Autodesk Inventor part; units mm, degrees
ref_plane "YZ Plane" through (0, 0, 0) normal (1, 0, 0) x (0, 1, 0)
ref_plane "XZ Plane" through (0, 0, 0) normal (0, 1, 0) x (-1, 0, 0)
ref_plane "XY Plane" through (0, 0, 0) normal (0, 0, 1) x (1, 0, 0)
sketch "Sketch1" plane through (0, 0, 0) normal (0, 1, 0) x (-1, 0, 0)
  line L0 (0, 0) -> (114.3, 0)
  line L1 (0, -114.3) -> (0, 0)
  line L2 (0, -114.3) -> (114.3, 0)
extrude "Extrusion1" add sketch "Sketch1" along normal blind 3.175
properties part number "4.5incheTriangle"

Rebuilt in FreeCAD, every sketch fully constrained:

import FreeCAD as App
import Part
import Sketcher
from FreeCAD import Vector
Q = App.Units.Quantity

doc = App.newDocument("Part")
body = doc.addObject("PartDesign::Body", "Body")

# Sketch on XZ plane
sketch1 = body.newObject("Sketcher::SketchObject", "Sketch")
sketch1.AttachmentSupport = (doc.getObject("XZ_Plane"), [""])
sketch1.MapMode = "FlatFace"
sketch1.addGeometry(Part.LineSegment(Vector(-114, 0, 0), Vector(0, 0, 0)), False)
sketch1.addGeometry(Part.LineSegment(Vector(0, 0, 0), Vector(0, -114, 0)), False)
sketch1.addGeometry(Part.LineSegment(Vector(0, -114, 0), Vector(-114, 0, 0)), False)
sketch1.addConstraint(Sketcher.Constraint("Coincident", 0, 2, 1, 1))
sketch1.addConstraint(Sketcher.Constraint("Coincident", 1, 2, 2, 1))
sketch1.addConstraint(Sketcher.Constraint("Coincident", 2, 2, 0, 1))
sketch1.addConstraint(Sketcher.Constraint("Horizontal", 0))
sketch1.addConstraint(Sketcher.Constraint("Vertical", 1))
sketch1.addConstraint(Sketcher.Constraint("Coincident", 0, 2, -1, 1))
sketch1.addConstraint(Sketcher.Constraint("Equal", 0, 1))
sketch1.addConstraint(Sketcher.Constraint("DistanceX", 0, 1, 0, 2, Q("4.5 in")))
pad1 = body.newObject("PartDesign::Pad", "Pad")
pad1.Profile = sketch1
pad1.Length = Q("0.125 in")
pad1.Reversed = True

doc.recompute()
